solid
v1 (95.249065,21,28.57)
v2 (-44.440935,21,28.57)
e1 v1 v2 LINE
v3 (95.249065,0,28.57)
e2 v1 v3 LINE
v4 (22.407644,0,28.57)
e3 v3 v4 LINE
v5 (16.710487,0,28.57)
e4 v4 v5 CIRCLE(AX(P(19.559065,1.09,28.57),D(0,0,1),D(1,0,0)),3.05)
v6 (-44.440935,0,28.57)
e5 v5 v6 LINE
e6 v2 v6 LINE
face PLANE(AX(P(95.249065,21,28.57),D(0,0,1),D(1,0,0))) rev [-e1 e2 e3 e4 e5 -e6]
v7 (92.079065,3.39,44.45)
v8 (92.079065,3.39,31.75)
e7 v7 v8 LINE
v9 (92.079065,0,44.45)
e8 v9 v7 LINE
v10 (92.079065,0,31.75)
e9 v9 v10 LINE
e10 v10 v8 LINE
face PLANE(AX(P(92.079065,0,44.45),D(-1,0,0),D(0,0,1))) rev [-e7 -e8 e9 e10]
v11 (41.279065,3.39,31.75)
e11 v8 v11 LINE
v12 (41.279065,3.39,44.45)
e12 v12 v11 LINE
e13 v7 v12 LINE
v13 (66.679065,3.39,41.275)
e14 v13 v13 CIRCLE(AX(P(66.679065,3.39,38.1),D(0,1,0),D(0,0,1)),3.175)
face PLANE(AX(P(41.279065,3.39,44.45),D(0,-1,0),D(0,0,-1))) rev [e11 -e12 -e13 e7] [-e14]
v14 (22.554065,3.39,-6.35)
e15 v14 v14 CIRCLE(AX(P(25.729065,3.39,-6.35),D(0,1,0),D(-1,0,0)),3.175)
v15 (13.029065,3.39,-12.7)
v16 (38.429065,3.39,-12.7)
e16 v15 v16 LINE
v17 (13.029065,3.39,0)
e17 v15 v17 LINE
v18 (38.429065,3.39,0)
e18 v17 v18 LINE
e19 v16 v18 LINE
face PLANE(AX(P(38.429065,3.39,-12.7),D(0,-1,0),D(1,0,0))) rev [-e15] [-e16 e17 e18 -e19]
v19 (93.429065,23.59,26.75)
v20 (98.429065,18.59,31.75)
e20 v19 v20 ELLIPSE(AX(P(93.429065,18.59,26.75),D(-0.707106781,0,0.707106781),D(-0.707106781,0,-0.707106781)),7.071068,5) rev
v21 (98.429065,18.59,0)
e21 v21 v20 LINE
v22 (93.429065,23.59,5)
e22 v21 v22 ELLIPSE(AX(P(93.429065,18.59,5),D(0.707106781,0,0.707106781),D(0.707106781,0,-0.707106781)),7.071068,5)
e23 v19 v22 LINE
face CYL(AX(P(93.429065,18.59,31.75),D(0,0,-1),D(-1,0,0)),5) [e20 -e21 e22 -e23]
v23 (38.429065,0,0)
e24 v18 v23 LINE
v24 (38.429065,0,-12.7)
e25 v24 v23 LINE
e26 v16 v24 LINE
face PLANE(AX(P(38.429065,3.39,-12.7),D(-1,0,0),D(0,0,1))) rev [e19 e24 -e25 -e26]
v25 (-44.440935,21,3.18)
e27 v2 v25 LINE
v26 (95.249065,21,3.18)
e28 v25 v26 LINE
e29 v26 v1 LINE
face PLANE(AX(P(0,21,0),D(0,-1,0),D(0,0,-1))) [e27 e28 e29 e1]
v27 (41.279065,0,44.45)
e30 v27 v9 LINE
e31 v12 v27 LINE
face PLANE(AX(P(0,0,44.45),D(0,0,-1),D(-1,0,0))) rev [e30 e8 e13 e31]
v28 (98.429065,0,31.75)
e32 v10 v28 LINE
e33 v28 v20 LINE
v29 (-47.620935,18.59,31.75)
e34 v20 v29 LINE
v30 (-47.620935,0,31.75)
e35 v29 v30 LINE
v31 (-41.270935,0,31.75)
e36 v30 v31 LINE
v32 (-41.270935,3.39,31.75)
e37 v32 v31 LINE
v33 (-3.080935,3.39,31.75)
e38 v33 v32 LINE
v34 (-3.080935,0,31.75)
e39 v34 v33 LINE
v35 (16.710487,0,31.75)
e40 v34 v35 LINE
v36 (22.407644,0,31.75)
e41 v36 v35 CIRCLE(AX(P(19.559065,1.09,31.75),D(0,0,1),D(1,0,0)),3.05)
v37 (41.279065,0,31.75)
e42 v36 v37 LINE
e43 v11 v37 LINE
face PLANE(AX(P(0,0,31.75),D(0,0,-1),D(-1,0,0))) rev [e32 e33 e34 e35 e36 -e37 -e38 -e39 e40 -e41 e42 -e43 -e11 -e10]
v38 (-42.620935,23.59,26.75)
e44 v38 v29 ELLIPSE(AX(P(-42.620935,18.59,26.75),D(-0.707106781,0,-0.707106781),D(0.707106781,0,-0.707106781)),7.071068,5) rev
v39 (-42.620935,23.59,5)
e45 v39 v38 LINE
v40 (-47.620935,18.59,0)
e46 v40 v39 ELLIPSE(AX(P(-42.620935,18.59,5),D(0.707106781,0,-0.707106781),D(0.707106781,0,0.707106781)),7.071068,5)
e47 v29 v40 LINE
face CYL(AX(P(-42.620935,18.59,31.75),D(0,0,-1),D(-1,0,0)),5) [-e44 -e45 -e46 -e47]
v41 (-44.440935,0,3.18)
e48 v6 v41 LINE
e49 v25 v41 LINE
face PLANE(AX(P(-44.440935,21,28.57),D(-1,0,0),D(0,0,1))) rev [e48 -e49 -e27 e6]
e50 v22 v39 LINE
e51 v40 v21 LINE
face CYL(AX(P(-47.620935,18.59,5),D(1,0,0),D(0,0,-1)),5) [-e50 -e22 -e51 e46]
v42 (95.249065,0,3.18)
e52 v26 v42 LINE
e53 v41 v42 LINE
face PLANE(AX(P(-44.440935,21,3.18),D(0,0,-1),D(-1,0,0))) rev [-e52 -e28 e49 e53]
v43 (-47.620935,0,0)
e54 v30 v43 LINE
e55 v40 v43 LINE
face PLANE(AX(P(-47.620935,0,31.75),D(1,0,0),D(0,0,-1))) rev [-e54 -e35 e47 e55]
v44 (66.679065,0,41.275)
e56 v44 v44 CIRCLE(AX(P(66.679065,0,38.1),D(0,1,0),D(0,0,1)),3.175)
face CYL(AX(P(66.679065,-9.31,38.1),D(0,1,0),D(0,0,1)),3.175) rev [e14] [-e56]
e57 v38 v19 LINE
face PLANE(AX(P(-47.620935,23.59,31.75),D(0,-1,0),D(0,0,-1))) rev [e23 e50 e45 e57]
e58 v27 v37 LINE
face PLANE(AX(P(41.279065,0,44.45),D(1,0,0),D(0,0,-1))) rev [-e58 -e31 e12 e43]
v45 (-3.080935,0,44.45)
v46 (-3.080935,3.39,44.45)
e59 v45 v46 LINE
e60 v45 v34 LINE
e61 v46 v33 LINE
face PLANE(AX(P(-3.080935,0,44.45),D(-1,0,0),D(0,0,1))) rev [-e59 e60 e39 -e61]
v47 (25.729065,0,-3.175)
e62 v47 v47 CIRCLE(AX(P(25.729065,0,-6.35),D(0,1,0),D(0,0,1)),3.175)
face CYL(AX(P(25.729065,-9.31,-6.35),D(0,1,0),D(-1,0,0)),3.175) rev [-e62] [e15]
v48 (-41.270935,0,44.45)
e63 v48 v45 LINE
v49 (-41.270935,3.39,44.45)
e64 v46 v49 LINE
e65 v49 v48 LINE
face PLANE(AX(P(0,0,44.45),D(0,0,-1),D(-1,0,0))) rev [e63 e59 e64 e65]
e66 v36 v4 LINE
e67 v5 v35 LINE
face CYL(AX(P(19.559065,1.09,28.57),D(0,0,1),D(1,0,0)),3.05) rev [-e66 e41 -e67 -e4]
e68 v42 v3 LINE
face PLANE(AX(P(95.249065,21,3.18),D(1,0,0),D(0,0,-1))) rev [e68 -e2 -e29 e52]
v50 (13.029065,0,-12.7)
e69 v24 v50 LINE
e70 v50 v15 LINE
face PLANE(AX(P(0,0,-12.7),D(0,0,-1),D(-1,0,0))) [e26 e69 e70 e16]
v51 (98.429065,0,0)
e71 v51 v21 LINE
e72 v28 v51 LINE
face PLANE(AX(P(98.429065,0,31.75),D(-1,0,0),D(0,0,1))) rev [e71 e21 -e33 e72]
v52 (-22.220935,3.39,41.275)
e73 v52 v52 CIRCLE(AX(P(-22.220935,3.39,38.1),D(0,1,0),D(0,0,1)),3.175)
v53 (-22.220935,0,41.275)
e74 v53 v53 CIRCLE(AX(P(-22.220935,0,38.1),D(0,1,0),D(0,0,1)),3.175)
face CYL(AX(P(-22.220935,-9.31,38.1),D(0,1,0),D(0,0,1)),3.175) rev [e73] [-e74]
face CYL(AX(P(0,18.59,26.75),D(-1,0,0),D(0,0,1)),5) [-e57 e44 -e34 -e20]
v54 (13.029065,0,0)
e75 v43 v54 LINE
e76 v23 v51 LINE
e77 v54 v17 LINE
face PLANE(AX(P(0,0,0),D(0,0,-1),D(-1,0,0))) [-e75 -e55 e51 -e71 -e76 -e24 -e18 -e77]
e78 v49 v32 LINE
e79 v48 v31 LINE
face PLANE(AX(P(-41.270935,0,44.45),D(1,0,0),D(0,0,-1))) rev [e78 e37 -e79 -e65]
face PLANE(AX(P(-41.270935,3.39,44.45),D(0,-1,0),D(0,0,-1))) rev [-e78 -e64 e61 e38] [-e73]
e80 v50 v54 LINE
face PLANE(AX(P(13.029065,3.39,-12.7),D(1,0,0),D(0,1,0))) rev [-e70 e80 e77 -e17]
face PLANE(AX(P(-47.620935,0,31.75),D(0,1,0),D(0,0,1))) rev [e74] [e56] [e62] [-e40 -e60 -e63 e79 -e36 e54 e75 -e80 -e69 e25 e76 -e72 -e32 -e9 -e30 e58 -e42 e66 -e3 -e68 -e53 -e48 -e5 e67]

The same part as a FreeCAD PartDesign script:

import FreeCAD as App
import Part
import Sketcher
from FreeCAD import Vector
Q = App.Units.Quantity


def edges_at(feature, points):
    """Names of the edges that pass closest to the given points."""
    edges = feature.Shape.Edges
    near = lambda p: min(range(len(edges)), key=lambda i: edges[i].distToShape(Part.Vertex(*p))[0])
    return sorted({f"Edge{near(p) + 1}" for p in points})

doc = App.newDocument("Part")
body = doc.addObject("PartDesign::Body", "Body")

# Sketch on XY plane
sketch1 = body.newObject("Sketcher::SketchObject", "Sketch")
sketch1.AttachmentSupport = (doc.getObject("XY_Plane"), [""])
sketch1.MapMode = "FlatFace"
sketch1.addGeometry([
    Part.LineSegment(Vector(-48, 24, 0), Vector(-48, 0, 0)),
    Part.LineSegment(Vector(-48, 0, 0), Vector(98, 0, 0)),
    Part.LineSegment(Vector(98, 0, 0), Vector(98, 24, 0)),
    Part.LineSegment(Vector(98, 24, 0), Vector(-48, 24, 0)),
], False)
sketch1.addConstraint([
    Sketcher.Constraint("Coincident", 0, 2, 1, 1),
    Sketcher.Constraint("Coincident", 1, 2, 2, 1),
    Sketcher.Constraint("Coincident", 2, 2, 3, 1),
    Sketcher.Constraint("Coincident", 3, 2, 0, 1),
    Sketcher.Constraint("Vertical", 0),
    Sketcher.Constraint("Horizontal", 1),
    Sketcher.Constraint("Vertical", 2),
    Sketcher.Constraint("Horizontal", 3),
    Sketcher.Constraint("PointOnObject", 0, 2, -1),
    Sketcher.Constraint("DistanceX", 1, 1, 1, 2, Q("5.75 in")),
    Sketcher.Constraint("DistanceY", 0, 2, 0, 1, 23.59),
    Sketcher.Constraint("DistanceX", 0, 2, -1, 1, 47.620935),
])
pad1 = body.newObject("PartDesign::Pad", "Pad")
pad1.Profile = sketch1
pad1.Length = Q("1.25 in")

# Sketch on XZ plane
sketch2 = body.newObject("Sketcher::SketchObject", "Sketch001")
sketch2.AttachmentSupport = (doc.getObject("XZ_Plane"), [""])
sketch2.MapMode = "FlatFace"
sketch2.addGeometry([
    Part.LineSegment(Vector(-44, 29, 0), Vector(-44, 3, 0)),
    Part.LineSegment(Vector(-44, 3, 0), Vector(95, 3, 0)),
    Part.LineSegment(Vector(95, 3, 0), Vector(95, 29, 0)),
    Part.LineSegment(Vector(95, 29, 0), Vector(-44, 29, 0)),
], False)
sketch2.addConstraint([
    Sketcher.Constraint("Coincident", 0, 2, 1, 1),
    Sketcher.Constraint("Coincident", 1, 2, 2, 1),
    Sketcher.Constraint("Coincident", 2, 2, 3, 1),
    Sketcher.Constraint("Coincident", 3, 2, 0, 1),
    Sketcher.Constraint("Vertical", 0),
    Sketcher.Constraint("Horizontal", 1),
    Sketcher.Constraint("Vertical", 2),
    Sketcher.Constraint("Horizontal", 3),
    Sketcher.Constraint("DistanceX", 1, 1, 1, 2, 139.69),
    Sketcher.Constraint("DistanceY", 0, 2, 0, 1, 25.39),
    Sketcher.Constraint("DistanceY", -1, 1, 0, 2, 3.18),
    Sketcher.Constraint("DistanceX", 0, 2, -1, 1, 44.440935),
])
pocket1 = body.newObject("PartDesign::Pocket", "Pocket")
pocket1.Profile = sketch2
pocket1.Length = 21
doc.recompute()

fillet = body.newObject("PartDesign::Fillet", "Fillet")
fillet.Base = (pocket1, edges_at(pocket1, [
    (25.404, 23.59, 31.75),
    (25.404, 23.59, 0),
    (-47.621, 23.59, 15.875),
    (98.429, 23.59, 15.875),
]))
fillet.Radius = 5

# Sketch on XY plane
sketch3 = body.newObject("Sketcher::SketchObject", "Sketch002")
sketch3.AttachmentSupport = (doc.getObject("XY_Plane"), [""])
sketch3.MapMode = "FlatFace"
sketch3.AttachmentOffset = App.Placement(Vector(0, 0, 1.25 * 25.4), App.Rotation())
sketch3.addGeometry(Part.Circle(Vector(19.6, 1.1, 0), Vector(0, 0, 1), 3), False)
sketch3.addConstraint([
    Sketcher.Constraint("Diameter", 0, 6.1),
    Sketcher.Constraint("DistanceY", -1, 1, 0, 3, 1.09),
    Sketcher.Constraint("DistanceX", -1, 1, 0, 3, 19.559065),
])
pocket2 = body.newObject("PartDesign::Pocket", "Pocket001")
pocket2.Profile = sketch3
pocket2.Length = 3.18

# Sketch on XY plane
sketch4 = body.newObject("Sketcher::SketchObject", "Sketch003")
sketch4.AttachmentSupport = (doc.getObject("XY_Plane"), [""])
sketch4.MapMode = "FlatFace"
sketch4.AttachmentOffset = App.Placement(Vector(0, 0, 1.25 * 25.4), App.Rotation())
sketch4.addGeometry([
    Part.LineSegment(Vector(-41.3, 3.4, 0), Vector(-41.3, 0, 0)),  # 0
    Part.LineSegment(Vector(-41.3, 0, 0), Vector(-3.1, 0, 0)),  # 1
    Part.LineSegment(Vector(-3.1, 0, 0), Vector(-3.1, 3.4, 0)),  # 2
    Part.LineSegment(Vector(-3.1, 3.4, 0), Vector(-41.3, 3.4, 0)),  # 3
    Part.LineSegment(Vector(41.3, 3.4, 0), Vector(41.3, 0, 0)),  # 4
    Part.LineSegment(Vector(41.3, 0, 0), Vector(92.1, 0, 0)),  # 5
    Part.LineSegment(Vector(92.1, 0, 0), Vector(92.1, 3.4, 0)),  # 6
    Part.LineSegment(Vector(92.1, 3.4, 0), Vector(41.3, 3.4, 0)),  # 7
], False)
sketch4.addConstraint([
    Sketcher.Constraint("Coincident", 0, 2, 1, 1),
    Sketcher.Constraint("Coincident", 1, 2, 2, 1),
    Sketcher.Constraint("Coincident", 2, 2, 3, 1),
    Sketcher.Constraint("Coincident", 3, 2, 0, 1),
    Sketcher.Constraint("Coincident", 4, 2, 5, 1),
    Sketcher.Constraint("Coincident", 5, 2, 6, 1),
    Sketcher.Constraint("Coincident", 6, 2, 7, 1),
    Sketcher.Constraint("Coincident", 7, 2, 4, 1),
    Sketcher.Constraint("Vertical", 0),
    Sketcher.Constraint("Horizontal", 1),
    Sketcher.Constraint("Vertical", 2),
    Sketcher.Constraint("Horizontal", 3),
    Sketcher.Constraint("Vertical", 4),
    Sketcher.Constraint("Horizontal", 5),
    Sketcher.Constraint("Vertical", 6),
    Sketcher.Constraint("Horizontal", 7),
    Sketcher.Constraint("PointOnObject", 0, 2, -1),
    Sketcher.Constraint("PointOnObject", 4, 2, -1),
    Sketcher.Constraint("Horizontal", 3, 2, 6, 2),
    Sketcher.Constraint("DistanceX", 5, 1, 5, 2, Q("2 in")),
    Sketcher.Constraint("DistanceX", 0, 2, 4, 2, Q("3.25 in")),
    Sketcher.Constraint("DistanceX", 1, 1, 1, 2, 38.19),
    Sketcher.Constraint("DistanceY", 0, 2, 0, 1, 3.39),
    Sketcher.Constraint("DistanceX", 0, 2, -1, 1, 41.270935),
])
pad2 = body.newObject("PartDesign::Pad", "Pad001")
pad2.Profile = sketch4
pad2.Length = Q("0.5 in")

# Sketch on XY plane
sketch5 = body.newObject("Sketcher::SketchObject", "Sketch004")
sketch5.AttachmentSupport = (doc.getObject("XY_Plane"), [""])
sketch5.MapMode = "FlatFace"
sketch5.addGeometry([
    Part.LineSegment(Vector(38.4, 3.4, 0), Vector(38.4, 0, 0)),
    Part.LineSegment(Vector(38.4, 0, 0), Vector(13, 0, 0)),
    Part.LineSegment(Vector(13, 0, 0), Vector(13, 3.4, 0)),
    Part.LineSegment(Vector(13, 3.4, 0), Vector(38.4, 3.4, 0)),
], False)
sketch5.addConstraint([
    Sketcher.Constraint("Coincident", 0, 2, 1, 1),
    Sketcher.Constraint("Coincident", 1, 2, 2, 1),
    Sketcher.Constraint("Coincident", 2, 2, 3, 1),
    Sketcher.Constraint("Coincident", 3, 2, 0, 1),
    Sketcher.Constraint("Vertical", 0),
    Sketcher.Constraint("Horizontal", 1),
    Sketcher.Constraint("Vertical", 2),
    Sketcher.Constraint("Horizontal", 3),
    Sketcher.Constraint("PointOnObject", 0, 2, -1),
    Sketcher.Constraint("DistanceX", 1, 2, 1, 1, Q("1 in")),
    Sketcher.Constraint("DistanceY", 0, 2, 0, 1, 3.39),
    Sketcher.Constraint("DistanceX", -1, 1, 0, 2, 38.429065),
])
pad3 = body.newObject("PartDesign::Pad", "Pad002")
pad3.Profile = sketch5
pad3.Length = Q("0.5 in")
pad3.Reversed = True

# Sketch on XZ plane
sketch6 = body.newObject("Sketcher::SketchObject", "Sketch005")
sketch6.AttachmentSupport = (doc.getObject("XZ_Plane"), [""])
sketch6.MapMode = "FlatFace"
sketch6.AttachmentOffset = App.Placement(Vector(0, 0, -3.39), App.Rotation())
sketch6.addGeometry([
    Part.Circle(Vector(-22.2, 38.1, 0), Vector(0, 0, 1), 3.2),
    Part.Circle(Vector(66.7, 38.1, 0), Vector(0, 0, 1), 3.2),
], False)
sketch6.addConstraint([
    Sketcher.Constraint("Equal", 0, 1),
    Sketcher.Constraint("Horizontal", 0, 3, 1, 3),
    Sketcher.Constraint("Diameter", 0, Q("0.25 in")),
    Sketcher.Constraint("DistanceY", -1, 1, 0, 3, Q("1.5 in")),
    Sketcher.Constraint("DistanceX", 0, 3, 1, 3, Q("3.5 in")),
    Sketcher.Constraint("DistanceX", 0, 3, -1, 1, 22.220935),
])
pocket3 = body.newObject("PartDesign::Pocket", "Pocket002")
pocket3.Profile = sketch6
pocket3.Length = Q("0.5 in")
pocket3.Reversed = True

# Sketch on XZ plane
sketch7 = body.newObject("Sketcher::SketchObject", "Sketch006")
sketch7.AttachmentSupport = (doc.getObject("XZ_Plane"), [""])
sketch7.MapMode = "FlatFace"
sketch7.AttachmentOffset = App.Placement(Vector(0, 0, -3.39), App.Rotation())
sketch7.addGeometry(Part.Circle(Vector(25.7, -6.3, 0), Vector(0, 0, 1), 3.2), False)
sketch7.addConstraint([
    Sketcher.Constraint("Diameter", 0, Q("0.25 in")),
    Sketcher.Constraint("DistanceY", 0, 3, -1, 1, Q("0.25 in")),
    Sketcher.Constraint("DistanceX", -1, 1, 0, 3, 25.729065),
])
pocket4 = body.newObject("PartDesign::Pocket", "Pocket003")
pocket4.Profile = sketch7
pocket4.Length = Q("0.5 in")
pocket4.Reversed = True

doc.recompute()
